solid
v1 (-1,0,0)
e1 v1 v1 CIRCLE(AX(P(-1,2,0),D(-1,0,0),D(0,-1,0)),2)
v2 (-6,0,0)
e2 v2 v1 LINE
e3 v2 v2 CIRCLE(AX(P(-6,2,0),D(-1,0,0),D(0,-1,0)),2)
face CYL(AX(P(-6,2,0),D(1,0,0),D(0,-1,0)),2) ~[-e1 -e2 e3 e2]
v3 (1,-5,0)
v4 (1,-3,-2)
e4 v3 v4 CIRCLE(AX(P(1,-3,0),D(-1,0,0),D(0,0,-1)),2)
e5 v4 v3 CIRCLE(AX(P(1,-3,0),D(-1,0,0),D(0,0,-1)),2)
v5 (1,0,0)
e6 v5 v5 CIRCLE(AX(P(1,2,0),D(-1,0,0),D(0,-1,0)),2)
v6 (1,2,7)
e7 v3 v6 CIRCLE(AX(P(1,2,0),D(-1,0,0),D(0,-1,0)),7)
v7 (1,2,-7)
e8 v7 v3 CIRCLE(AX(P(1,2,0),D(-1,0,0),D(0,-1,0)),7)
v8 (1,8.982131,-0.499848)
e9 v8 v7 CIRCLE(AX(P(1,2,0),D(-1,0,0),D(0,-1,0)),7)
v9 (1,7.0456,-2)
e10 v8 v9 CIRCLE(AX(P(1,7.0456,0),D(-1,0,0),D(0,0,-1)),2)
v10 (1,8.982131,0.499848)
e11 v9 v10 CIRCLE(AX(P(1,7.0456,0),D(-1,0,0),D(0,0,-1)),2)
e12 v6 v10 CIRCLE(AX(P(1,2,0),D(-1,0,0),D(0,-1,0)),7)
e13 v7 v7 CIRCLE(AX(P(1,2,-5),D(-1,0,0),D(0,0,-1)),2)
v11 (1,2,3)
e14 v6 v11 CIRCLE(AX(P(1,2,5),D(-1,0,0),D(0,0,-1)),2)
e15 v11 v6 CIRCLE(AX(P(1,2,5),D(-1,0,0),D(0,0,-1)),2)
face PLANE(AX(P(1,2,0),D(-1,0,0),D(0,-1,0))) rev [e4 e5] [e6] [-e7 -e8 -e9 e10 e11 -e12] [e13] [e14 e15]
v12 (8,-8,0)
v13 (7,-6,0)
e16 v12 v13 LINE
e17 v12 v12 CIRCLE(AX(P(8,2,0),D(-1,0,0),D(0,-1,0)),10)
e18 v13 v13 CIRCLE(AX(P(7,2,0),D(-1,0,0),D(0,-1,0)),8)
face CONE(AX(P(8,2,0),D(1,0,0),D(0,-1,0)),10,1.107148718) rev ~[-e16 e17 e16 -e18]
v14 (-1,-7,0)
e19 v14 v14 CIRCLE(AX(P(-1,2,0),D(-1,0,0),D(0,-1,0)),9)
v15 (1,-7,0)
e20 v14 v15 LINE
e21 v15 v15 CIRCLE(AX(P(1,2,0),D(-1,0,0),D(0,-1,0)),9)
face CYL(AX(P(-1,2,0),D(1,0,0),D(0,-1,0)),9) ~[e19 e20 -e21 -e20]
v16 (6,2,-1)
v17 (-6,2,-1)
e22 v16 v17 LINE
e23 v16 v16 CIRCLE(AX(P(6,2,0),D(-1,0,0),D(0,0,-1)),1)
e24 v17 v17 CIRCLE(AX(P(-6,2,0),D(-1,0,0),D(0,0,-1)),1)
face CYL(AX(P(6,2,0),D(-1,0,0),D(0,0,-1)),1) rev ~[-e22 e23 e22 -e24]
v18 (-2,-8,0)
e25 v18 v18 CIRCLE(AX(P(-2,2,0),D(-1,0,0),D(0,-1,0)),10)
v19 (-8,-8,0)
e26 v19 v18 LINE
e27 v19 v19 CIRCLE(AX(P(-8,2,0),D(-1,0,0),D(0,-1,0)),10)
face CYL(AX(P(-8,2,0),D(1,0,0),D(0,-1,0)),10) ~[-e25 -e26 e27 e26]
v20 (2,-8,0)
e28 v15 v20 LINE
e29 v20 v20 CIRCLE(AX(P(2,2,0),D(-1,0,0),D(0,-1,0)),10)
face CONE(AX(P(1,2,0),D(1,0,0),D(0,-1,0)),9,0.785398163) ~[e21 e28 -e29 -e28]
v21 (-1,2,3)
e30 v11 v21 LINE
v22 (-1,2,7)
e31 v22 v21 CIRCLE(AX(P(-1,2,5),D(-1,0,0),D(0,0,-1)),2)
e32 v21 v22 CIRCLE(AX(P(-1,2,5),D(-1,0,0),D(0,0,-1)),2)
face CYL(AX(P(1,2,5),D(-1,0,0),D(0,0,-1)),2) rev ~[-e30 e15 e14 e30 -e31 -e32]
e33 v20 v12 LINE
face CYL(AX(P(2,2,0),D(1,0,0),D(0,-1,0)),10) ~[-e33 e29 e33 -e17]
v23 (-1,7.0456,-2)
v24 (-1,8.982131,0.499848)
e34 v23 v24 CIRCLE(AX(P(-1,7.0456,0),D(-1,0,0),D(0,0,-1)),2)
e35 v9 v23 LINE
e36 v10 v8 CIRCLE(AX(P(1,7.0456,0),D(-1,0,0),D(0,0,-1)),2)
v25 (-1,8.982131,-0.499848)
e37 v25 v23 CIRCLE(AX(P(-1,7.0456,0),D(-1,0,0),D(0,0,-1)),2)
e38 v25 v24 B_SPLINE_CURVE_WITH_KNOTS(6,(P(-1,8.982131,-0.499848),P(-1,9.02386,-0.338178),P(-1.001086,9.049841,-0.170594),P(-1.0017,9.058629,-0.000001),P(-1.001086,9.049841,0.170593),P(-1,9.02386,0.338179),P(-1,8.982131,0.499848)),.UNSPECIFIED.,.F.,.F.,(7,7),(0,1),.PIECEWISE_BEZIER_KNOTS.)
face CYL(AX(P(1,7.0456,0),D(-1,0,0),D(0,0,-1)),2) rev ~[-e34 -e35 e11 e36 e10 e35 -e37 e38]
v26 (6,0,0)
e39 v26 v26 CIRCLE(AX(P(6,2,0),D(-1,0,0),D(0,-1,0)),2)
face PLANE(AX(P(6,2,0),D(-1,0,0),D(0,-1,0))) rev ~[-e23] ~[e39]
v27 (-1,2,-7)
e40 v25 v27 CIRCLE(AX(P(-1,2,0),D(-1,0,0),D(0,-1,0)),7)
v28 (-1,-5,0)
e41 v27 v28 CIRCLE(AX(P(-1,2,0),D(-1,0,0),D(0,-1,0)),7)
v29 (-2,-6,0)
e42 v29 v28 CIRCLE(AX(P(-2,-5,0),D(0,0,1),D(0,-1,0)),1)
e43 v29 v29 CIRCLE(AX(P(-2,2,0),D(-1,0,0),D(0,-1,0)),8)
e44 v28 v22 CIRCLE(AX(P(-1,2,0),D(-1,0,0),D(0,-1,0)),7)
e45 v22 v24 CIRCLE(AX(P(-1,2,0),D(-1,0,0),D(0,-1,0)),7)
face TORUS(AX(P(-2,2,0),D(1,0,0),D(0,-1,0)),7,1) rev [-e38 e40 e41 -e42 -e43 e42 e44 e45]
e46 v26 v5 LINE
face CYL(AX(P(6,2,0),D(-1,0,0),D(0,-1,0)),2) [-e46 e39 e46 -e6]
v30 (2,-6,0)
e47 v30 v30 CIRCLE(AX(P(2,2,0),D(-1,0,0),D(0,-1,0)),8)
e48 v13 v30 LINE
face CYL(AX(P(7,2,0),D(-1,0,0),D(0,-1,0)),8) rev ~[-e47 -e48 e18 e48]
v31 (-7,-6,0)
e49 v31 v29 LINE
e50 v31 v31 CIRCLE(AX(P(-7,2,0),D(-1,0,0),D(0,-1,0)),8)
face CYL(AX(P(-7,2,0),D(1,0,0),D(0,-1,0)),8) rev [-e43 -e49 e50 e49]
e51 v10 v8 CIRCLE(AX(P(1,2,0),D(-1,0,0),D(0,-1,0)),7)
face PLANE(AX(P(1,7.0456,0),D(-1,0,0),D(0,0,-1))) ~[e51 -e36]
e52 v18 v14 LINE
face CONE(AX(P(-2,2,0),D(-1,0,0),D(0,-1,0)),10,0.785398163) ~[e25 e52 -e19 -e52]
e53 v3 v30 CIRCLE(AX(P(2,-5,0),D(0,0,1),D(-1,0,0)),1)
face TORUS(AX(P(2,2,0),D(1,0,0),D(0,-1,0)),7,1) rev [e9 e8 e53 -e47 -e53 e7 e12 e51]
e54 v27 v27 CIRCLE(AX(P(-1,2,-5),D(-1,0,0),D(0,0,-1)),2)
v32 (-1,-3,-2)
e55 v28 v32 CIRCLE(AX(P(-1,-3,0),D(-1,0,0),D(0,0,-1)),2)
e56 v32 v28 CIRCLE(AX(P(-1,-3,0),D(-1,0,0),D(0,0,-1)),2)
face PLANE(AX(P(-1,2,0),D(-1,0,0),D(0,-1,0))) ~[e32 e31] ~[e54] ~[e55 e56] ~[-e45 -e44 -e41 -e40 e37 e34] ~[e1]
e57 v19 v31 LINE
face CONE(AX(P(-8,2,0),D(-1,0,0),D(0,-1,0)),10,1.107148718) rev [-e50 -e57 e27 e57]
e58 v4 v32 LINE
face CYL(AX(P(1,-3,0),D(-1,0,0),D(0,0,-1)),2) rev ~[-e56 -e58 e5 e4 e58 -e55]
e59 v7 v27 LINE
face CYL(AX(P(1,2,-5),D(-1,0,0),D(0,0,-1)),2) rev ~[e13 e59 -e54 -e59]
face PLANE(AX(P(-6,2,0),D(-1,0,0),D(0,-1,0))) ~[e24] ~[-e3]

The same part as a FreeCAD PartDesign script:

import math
import FreeCAD as App
import Part
import Sketcher

V = App.Vector

doc = App.newDocument("Part")
params = doc.addObject("Spreadsheet::Sheet", "Params")
for row, (alias, value) in enumerate([
    ("sketch1_radius", "1 mm"),
    ("sketch1_width", "5 mm"),
    ("sketch1_width2", "12 mm"),
    ("sketch1_width3", "6 mm"),
    ("revolution_angle", "360 deg"),
    ("sketch2_diameter", "4 mm"),
    ("hole_diameter", "4 mm"),
    ("hole_depth", "8 mm"),
    ("sketch3_diameter", "2 mm"),
    ("hole2_diameter", "2 mm"),
    ("hole2_depth", "20 mm"),
], start=1):
    params.set(f"A{row}", alias)
    params.set(f"B{row}", "=" + value)
    params.setAlias(f"B{row}", alias)

body = doc.addObject("PartDesign::Body", "Body")

sketch1 = body.newObject("Sketcher::SketchObject", "Sketch")
sketch1.AttachmentSupport = (doc.getObject("XY_Plane"), [""])
sketch1.MapMode = "FlatFace"
sketch1.addGeometry(Part.LineSegment(V(1, 0, 0), V(6, 0, 0)), False)
sketch1.addGeometry(Part.LineSegment(V(6, 0, 0), V(6, 2, 0)), False)
sketch1.addGeometry(Part.LineSegment(V(6, 2, 0), V(-6, 2, 0)), False)
sketch1.addGeometry(Part.LineSegment(V(-6, 2, 0), V(-6, 0, 0)), False)
sketch1.addGeometry(Part.LineSegment(V(-6, 0, 0), V(-1, 0, 0)), False)
sketch1.addGeometry(Part.LineSegment(V(-1, 0, 0), V(-1, -5, 0)), False)
sketch1.addGeometry(Part.ArcOfCircle(Part.Circle(V(-2, -5, 0), V(0, 0, 1), 1), math.radians(-90), math.radians(0)), False)
sketch1.addGeometry(Part.LineSegment(V(-2, -6, 0), V(-7, -6, 0)), False)
sketch1.addGeometry(Part.LineSegment(V(-7, -6, 0), V(-8, -8, 0)), False)
sketch1.addGeometry(Part.LineSegment(V(-8, -8, 0), V(-2, -8, 0)), False)
sketch1.addGeometry(Part.LineSegment(V(-2, -8, 0), V(-1, -7, 0)), False)
sketch1.addGeometry(Part.LineSegment(V(-1, -7, 0), V(1, -7, 0)), False)
sketch1.addGeometry(Part.LineSegment(V(1, -7, 0), V(2, -8, 0)), False)
sketch1.addGeometry(Part.LineSegment(V(2, -8, 0), V(8, -8, 0)), False)
sketch1.addGeometry(Part.LineSegment(V(8, -8, 0), V(7, -6, 0)), False)
sketch1.addGeometry(Part.LineSegment(V(7, -6, 0), V(2, -6, 0)), False)
sketch1.addGeometry(Part.ArcOfCircle(Part.Circle(V(2, -5, 0), V(0, 0, 1), 1), math.radians(180), math.radians(270)), False)
sketch1.addGeometry(Part.LineSegment(V(1, -5, 0), V(1, 0, 0)), False)
sketch1.addGeometry(Part.LineSegment(V(8, 2, 0), V(-8, 2, 0)), True)
sketch1.addConstraint(Sketcher.Constraint("Coincident", 0, 2, 1, 1))
sketch1.addConstraint(Sketcher.Constraint("Coincident", 1, 2, 2, 1))
sketch1.addConstraint(Sketcher.Constraint("Coincident", 2, 2, 3, 1))
sketch1.addConstraint(Sketcher.Constraint("Coincident", 3, 2, 4, 1))
sketch1.addConstraint(Sketcher.Constraint("Coincident", 4, 2, 5, 1))
sketch1.addConstraint(Sketcher.Constraint("Tangent", 5, 2, 6, 2))
sketch1.addConstraint(Sketcher.Constraint("Tangent", 6, 1, 7, 1))
sketch1.addConstraint(Sketcher.Constraint("Coincident", 7, 2, 8, 1))
sketch1.addConstraint(Sketcher.Constraint("Coincident", 8, 2, 9, 1))
sketch1.addConstraint(Sketcher.Constraint("Coincident", 9, 2, 10, 1))
sketch1.addConstraint(Sketcher.Constraint("Coincident", 10, 2, 11, 1))
sketch1.addConstraint(Sketcher.Constraint("Coincident", 11, 2, 12, 1))
sketch1.addConstraint(Sketcher.Constraint("Coincident", 12, 2, 13, 1))
sketch1.addConstraint(Sketcher.Constraint("Coincident", 13, 2, 14, 1))
sketch1.addConstraint(Sketcher.Constraint("Coincident", 14, 2, 15, 1))
sketch1.addConstraint(Sketcher.Constraint("Tangent", 15, 2, 16, 2))
sketch1.addConstraint(Sketcher.Constraint("Tangent", 16, 1, 17, 1))
sketch1.addConstraint(Sketcher.Constraint("Coincident", 17, 2, 0, 1))
sketch1.addConstraint(Sketcher.Constraint("Horizontal", 0))
sketch1.addConstraint(Sketcher.Constraint("Vertical", 1))
sketch1.addConstraint(Sketcher.Constraint("Horizontal", 2))
sketch1.addConstraint(Sketcher.Constraint("Vertical", 3))
sketch1.addConstraint(Sketcher.Constraint("Horizontal", 4))
sketch1.addConstraint(Sketcher.Constraint("Vertical", 5))
sketch1.addConstraint(Sketcher.Constraint("Horizontal", 7))
sketch1.addConstraint(Sketcher.Constraint("Horizontal", 9))
sketch1.addConstraint(Sketcher.Constraint("Horizontal", 11))
sketch1.addConstraint(Sketcher.Constraint("Horizontal", 13))
sketch1.addConstraint(Sketcher.Constraint("Horizontal", 15))
sketch1.addConstraint(Sketcher.Constraint("Vertical", 17))
sketch1.addConstraint(Sketcher.Constraint("Horizontal", 18))
sketch1.addConstraint(Sketcher.Constraint("Equal", 6, 16))
sketch1.addConstraint(Sketcher.Constraint("Symmetric", 0, 2, 3, 2, -1, 1))
sketch1.addConstraint(Sketcher.Constraint("Symmetric", 6, 3, 16, 3, -2))
sketch1.addConstraint(Sketcher.Constraint("Symmetric", 9, 2, 12, 2, -2))
sketch1.addConstraint(Sketcher.Constraint("PointOnObject", 0, 2, -1))
sketch1.addConstraint(Sketcher.Constraint("Perpendicular", 10, 12))
sketch1.addConstraint(Sketcher.Constraint("Horizontal", 2, 2, 18, 1))
sketch1.addConstraint(Sketcher.Constraint("Vertical", 6, 1, 9, 2))
sketch1.addConstraint(Sketcher.Constraint("Vertical", 5, 2, 10, 2))
sketch1.addConstraint(Sketcher.Constraint("Vertical", 11, 2, 16, 1))
sketch1.addConstraint(Sketcher.Constraint("Vertical", 13, 2, 18, 1))
sketch1.addConstraint(Sketcher.Constraint("Vertical", 8, 2, 18, 2))
sketch1.addConstraint(Sketcher.Constraint("Equal", 4, 7))
sketch1.addConstraint(Sketcher.Constraint("Equal", 9, 13))
sketch1.addConstraint(Sketcher.Constraint("Equal", 7, 15))
sketch1.addConstraint(Sketcher.Constraint("Equal", 11, 1))
sketch1.addConstraint(Sketcher.Constraint("Equal", 15, 5))
sketch1.addConstraint(Sketcher.Constraint("Radius", 6, 1.0))
sketch1.addConstraint(Sketcher.Constraint("DistanceX", 0, 1, 0, 2, 5.0))
sketch1.addConstraint(Sketcher.Constraint("DistanceX", 2, 2, 2, 1, 12.0))
sketch1.addConstraint(Sketcher.Constraint("DistanceX", 9, 1, 9, 2, 6.0))
sketch1.addConstraint(Sketcher.Constraint("DistanceY", 8, 2, 7, 2, 2.0))
sketch1.setExpression("Constraints[48]", "Params.sketch1_radius")
sketch1.setExpression("Constraints[49]", "Params.sketch1_width")
sketch1.setExpression("Constraints[50]", "Params.sketch1_width2")
sketch1.setExpression("Constraints[51]", "Params.sketch1_width3")
revolution = body.newObject("PartDesign::Revolution", "Revolution")
revolution.Profile = sketch1
revolution.ReferenceAxis = (sketch1, ["Axis0"])
revolution.setExpression("Angle", "Params.revolution_angle")

sketch2 = body.newObject("Sketcher::SketchObject", "Sketch001")
sketch2.AttachmentSupport = (doc.getObject("YZ_Plane"), [""])
sketch2.MapMode = "FlatFace"
sketch2.AttachmentOffset = App.Placement(V(0, 0, 1), App.Rotation())
sketch2.addGeometry(Part.Circle(V(7, 0, 0), V(0, 0, 1), 2), False)
sketch2.addGeometry(Part.Circle(V(2, -5, 0), V(0, 0, 1), 2), False)
sketch2.addGeometry(Part.Circle(V(-3, 0, 0), V(0, 0, 1), 2), False)
sketch2.addGeometry(Part.Circle(V(2, 5, 0), V(0, 0, 1), 2), False)
sketch2.addConstraint(Sketcher.Constraint("Equal", 0, 1))
sketch2.addConstraint(Sketcher.Constraint("Equal", 1, 2))
sketch2.addConstraint(Sketcher.Constraint("Equal", 2, 3))
sketch2.addConstraint(Sketcher.Constraint("Symmetric", 1, 3, 3, 3, -1))
sketch2.addConstraint(Sketcher.Constraint("PointOnObject", 0, 3, -1))
sketch2.addConstraint(Sketcher.Constraint("PointOnObject", 2, 3, -1))
sketch2.addConstraint(Sketcher.Constraint("Diameter", 0, 4.0))
sketch2.addConstraint(Sketcher.Constraint("DistanceX", -1, 1, 1, 3, 2.0))
sketch2.addConstraint(Sketcher.Constraint("DistanceY", 1, 3, -1, 1, 5.0))
sketch2.addConstraint(Sketcher.Constraint("DistanceX", 2, 3, -1, 1, 3.0))
sketch2.addConstraint(Sketcher.Constraint("DistanceX", -1, 1, 0, 3, 7.0456))
sketch2.setExpression("Constraints[6]", "Params.sketch2_diameter")
doc.recompute()
hole = body.newObject("PartDesign::Hole", "Hole")
hole.Profile = sketch2
hole.ThreadType = "None"
hole.setExpression("Diameter", "Params.hole_diameter")
hole.DepthType = "Dimension"
hole.setExpression("Depth", "Params.hole_depth")
hole.DrillPoint = "Flat"

sketch3 = body.newObject("Sketcher::SketchObject", "Sketch002")
sketch3.AttachmentSupport = (doc.getObject("YZ_Plane"), [""])
sketch3.MapMode = "FlatFace"
sketch3.AttachmentOffset = App.Placement(V(0, 0, 6), App.Rotation())
sketch3.addGeometry(Part.Circle(V(2, 0, 0), V(0, 0, 1), 1), False)
sketch3.addConstraint(Sketcher.Constraint("PointOnObject", 0, 3, -1))
sketch3.addConstraint(Sketcher.Constraint("Diameter", 0, 2.0))
sketch3.addConstraint(Sketcher.Constraint("DistanceX", -1, 1, 0, 3, 2.0))
sketch3.setExpression("Constraints[1]", "Params.sketch3_diameter")
doc.recompute()
hole2 = body.newObject("PartDesign::Hole", "Hole001")
hole2.Profile = sketch3
hole2.ThreadType = "None"
hole2.setExpression("Diameter", "Params.hole2_diameter")
hole2.DepthType = "Dimension"
hole2.setExpression("Depth", "Params.hole2_depth")
hole2.DrillPoint = "Flat"

doc.recompute()
